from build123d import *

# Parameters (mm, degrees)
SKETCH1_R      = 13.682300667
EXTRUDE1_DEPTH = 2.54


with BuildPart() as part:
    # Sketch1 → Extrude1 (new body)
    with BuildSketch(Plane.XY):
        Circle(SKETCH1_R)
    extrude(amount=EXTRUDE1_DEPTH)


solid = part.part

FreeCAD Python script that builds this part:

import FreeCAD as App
import Part
import Sketcher
Q = App.Units.Quantity

doc = App.newDocument("Part")
body = doc.addObject("PartDesign::Body", "Body")

# Sketch on XY plane
sketch1 = body.newObject("Sketcher::SketchObject", "Sketch")
sketch1.AttachmentSupport = (doc.getObject("XY_Plane"), [""])
sketch1.MapMode = "FlatFace"
sketch1.addGeometry(Part.Circle(App.Vector(0, 0, 0), App.Vector(0, 0, 1), 13.682301), False)
sketch1.addConstraint(Sketcher.Constraint("Coincident", 0, 3, -1, 1))
sketch1.addConstraint(Sketcher.Constraint("Diameter", 0, Q("27.364601 mm")))
pad1 = body.newObject("PartDesign::Pad", "Pad")
pad1.Profile = sketch1
pad1.Length = Q("0.1 in")

doc.recompute()
